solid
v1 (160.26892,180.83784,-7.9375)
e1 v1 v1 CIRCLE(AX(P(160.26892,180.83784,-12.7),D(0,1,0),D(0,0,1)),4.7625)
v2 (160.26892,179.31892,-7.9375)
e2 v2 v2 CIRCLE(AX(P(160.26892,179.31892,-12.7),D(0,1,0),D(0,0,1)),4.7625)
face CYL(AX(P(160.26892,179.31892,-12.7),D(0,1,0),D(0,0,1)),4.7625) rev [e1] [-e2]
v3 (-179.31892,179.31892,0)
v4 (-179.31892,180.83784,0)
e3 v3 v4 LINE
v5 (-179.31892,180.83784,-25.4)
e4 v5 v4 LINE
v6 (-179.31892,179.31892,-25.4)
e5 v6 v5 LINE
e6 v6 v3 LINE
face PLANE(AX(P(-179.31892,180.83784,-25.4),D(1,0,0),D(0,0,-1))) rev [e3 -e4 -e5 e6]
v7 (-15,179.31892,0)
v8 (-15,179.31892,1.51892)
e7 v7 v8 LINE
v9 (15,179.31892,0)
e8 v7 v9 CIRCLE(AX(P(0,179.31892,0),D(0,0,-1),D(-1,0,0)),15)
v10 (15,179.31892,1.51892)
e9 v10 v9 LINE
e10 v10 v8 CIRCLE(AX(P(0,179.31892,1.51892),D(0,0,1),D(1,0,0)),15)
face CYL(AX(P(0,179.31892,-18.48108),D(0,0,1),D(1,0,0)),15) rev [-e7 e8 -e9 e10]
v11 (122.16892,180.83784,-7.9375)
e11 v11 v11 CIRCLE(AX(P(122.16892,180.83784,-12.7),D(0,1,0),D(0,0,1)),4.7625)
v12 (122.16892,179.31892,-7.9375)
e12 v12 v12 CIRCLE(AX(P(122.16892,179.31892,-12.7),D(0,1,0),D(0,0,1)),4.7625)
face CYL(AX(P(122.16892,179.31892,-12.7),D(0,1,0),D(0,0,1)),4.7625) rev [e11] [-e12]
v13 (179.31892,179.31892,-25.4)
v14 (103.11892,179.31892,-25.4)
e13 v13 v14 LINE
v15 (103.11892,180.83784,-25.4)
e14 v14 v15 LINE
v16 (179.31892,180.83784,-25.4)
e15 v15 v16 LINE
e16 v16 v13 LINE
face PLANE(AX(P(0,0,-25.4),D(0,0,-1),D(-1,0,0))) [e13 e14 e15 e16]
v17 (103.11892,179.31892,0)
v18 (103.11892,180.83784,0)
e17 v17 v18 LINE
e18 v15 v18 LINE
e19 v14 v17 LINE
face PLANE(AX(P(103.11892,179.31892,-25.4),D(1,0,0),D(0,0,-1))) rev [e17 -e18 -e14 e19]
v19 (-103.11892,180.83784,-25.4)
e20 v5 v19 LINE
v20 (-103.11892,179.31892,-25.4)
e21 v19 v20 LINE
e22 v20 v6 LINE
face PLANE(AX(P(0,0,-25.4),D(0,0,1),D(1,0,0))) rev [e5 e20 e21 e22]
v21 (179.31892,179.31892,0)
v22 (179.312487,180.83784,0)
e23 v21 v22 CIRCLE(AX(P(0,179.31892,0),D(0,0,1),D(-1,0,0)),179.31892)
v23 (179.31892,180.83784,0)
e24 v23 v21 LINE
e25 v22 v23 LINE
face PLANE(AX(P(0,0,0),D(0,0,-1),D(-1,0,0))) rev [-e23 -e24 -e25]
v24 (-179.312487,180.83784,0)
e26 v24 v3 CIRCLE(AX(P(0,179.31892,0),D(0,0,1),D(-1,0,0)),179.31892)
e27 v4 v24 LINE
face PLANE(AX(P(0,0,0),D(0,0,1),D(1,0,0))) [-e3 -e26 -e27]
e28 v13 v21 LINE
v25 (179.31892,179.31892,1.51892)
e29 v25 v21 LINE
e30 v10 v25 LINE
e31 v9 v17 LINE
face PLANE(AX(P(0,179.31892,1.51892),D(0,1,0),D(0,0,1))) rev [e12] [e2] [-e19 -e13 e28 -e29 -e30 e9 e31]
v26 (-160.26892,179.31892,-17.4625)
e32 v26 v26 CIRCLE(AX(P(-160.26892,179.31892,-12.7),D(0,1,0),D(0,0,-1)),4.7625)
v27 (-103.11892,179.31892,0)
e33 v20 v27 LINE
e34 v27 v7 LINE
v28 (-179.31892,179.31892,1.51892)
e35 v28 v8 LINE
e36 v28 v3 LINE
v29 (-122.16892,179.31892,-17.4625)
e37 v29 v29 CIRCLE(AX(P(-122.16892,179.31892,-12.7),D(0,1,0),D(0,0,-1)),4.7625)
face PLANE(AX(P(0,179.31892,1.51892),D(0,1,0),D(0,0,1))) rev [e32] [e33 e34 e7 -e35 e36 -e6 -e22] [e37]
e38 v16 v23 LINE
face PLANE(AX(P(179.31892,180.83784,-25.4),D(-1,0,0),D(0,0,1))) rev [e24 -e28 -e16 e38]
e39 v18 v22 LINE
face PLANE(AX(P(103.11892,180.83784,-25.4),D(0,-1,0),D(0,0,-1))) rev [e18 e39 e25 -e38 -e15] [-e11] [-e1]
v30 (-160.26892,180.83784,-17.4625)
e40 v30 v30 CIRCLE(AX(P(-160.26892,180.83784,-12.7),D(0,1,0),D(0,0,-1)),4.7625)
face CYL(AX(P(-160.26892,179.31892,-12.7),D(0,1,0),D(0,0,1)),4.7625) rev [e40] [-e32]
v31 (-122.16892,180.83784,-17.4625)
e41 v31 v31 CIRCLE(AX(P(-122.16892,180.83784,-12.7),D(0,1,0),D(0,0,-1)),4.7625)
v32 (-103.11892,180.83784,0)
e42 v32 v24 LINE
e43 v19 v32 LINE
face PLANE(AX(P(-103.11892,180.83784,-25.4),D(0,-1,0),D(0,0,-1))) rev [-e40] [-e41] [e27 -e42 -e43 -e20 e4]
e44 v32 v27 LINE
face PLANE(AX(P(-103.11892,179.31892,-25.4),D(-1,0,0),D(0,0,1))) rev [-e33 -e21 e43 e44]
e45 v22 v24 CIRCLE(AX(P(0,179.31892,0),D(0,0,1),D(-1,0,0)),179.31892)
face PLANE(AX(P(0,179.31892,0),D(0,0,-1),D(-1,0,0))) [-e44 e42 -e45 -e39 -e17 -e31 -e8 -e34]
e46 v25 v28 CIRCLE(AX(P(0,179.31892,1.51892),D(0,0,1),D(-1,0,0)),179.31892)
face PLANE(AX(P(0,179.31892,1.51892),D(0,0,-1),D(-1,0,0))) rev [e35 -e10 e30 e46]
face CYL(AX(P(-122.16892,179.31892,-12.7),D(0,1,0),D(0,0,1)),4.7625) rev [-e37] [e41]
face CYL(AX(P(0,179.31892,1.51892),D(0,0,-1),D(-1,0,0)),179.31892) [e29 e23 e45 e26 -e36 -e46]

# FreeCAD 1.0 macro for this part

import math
import FreeCAD as App
import Part
import Sketcher

V = App.Vector
Q = App.Units.Quantity

doc = App.newDocument("Part")
body = doc.addObject("PartDesign::Body", "Body")

# Sketch on XY plane
sketch1 = doc.addObject("Sketcher::SketchObject", "Sketch")
body.addObject(sketch1)
sketch1.AttachmentSupport = (doc.XY_Plane, [""])
sketch1.MapMode = "FlatFace"
sketch1.addGeometry([
    Part.ArcOfCircle(Part.Circle(V(0, 179, 0), V(0, 0, 1), 179), math.radians(0), math.radians(180)),
    Part.LineSegment(V(-179, 179, 0), V(179, 179, 0)),
], False)
sketch1.addConstraint([
    Sketcher.Constraint("Coincident", 0, 1, 1, 2),
    Sketcher.Constraint("Coincident", 1, 1, 0, 2),
    Sketcher.Constraint("Horizontal", 1),
    Sketcher.Constraint("PointOnObject", 0, 3, -2),
    Sketcher.Constraint("Radius", 0, Q("7.0598 in")),
    Sketcher.Constraint("DistanceY", -1, 1, 0, 3, Q("7.0598 in")),
    Sketcher.Constraint("DistanceY", -1, 1, 0, 1, Q("7.0598 in")),
])
pad1 = doc.addObject("PartDesign::Pad", "Pad")
body.addObject(pad1)
pad1.Profile = sketch1
pad1.Length = Q("0.0598 in")

# Sketch on XY plane
sketch2 = doc.addObject("Sketcher::SketchObject", "Sketch001")
body.addObject(sketch2)
sketch2.AttachmentSupport = (doc.XY_Plane, [""])
sketch2.MapMode = "FlatFace"
sketch2.AttachmentOffset = App.Placement(V(0, 0, 0.0598 * 25.4), App.Rotation())
sketch2.addGeometry(Part.Circle(V(0, 179, 0), V(0, 0, 1), 15), False)
sketch2.addConstraint([
    Sketcher.Constraint("PointOnObject", 0, 3, -2),
    Sketcher.Constraint("Diameter", 0, Q("30 mm")),
    Sketcher.Constraint("DistanceY", -1, 1, 0, 3, Q("7.0598 in")),
])
pocket1 = doc.addObject("PartDesign::Pocket", "Pocket")
body.addObject(pocket1)
pocket1.Profile = sketch2
pocket1.Length = 20

# Sketch on XY plane
sketch3 = doc.addObject("Sketcher::SketchObject", "Sketch002")
body.addObject(sketch3)
sketch3.AttachmentSupport = (doc.XY_Plane, [""])
sketch3.MapMode = "FlatFace"
sketch3.addGeometry([
    Part.LineSegment(V(179.3, 180.8, 0), V(179.3, 179.3, 0)),  # 0
    Part.LineSegment(V(179.3, 179.3, 0), V(103.1, 179.3, 0)),  # 1
    Part.LineSegment(V(103.1, 179.3, 0), V(103.1, 180.8, 0)),  # 2
    Part.LineSegment(V(103.1, 180.8, 0), V(179.3, 180.8, 0)),  # 3
    Part.LineSegment(V(-103.1, 180.8, 0), V(-103.1, 179.3, 0)),  # 4
    Part.LineSegment(V(-103.1, 179.3, 0), V(-179.3, 179.3, 0)),  # 5
    Part.LineSegment(V(-179.3, 179.3, 0), V(-179.3, 180.8, 0)),  # 6
    Part.LineSegment(V(-179.3, 180.8, 0), V(-103.1, 180.8, 0)),  # 7
], False)
sketch3.addConstraint([
    Sketcher.Constraint("Coincident", 0, 2, 1, 1),
    Sketcher.Constraint("Coincident", 1, 2, 2, 1),
    Sketcher.Constraint("Coincident", 2, 2, 3, 1),
    Sketcher.Constraint("Coincident", 3, 2, 0, 1),
    Sketcher.Constraint("Coincident", 4, 2, 5, 1),
    Sketcher.Constraint("Coincident", 5, 2, 6, 1),
    Sketcher.Constraint("Coincident", 6, 2, 7, 1),
    Sketcher.Constraint("Coincident", 7, 2, 4, 1),
    Sketcher.Constraint("Vertical", 0),
    Sketcher.Constraint("Horizontal", 1),
    Sketcher.Constraint("Vertical", 2),
    Sketcher.Constraint("Horizontal", 3),
    Sketcher.Constraint("Vertical", 4),
    Sketcher.Constraint("Horizontal", 5),
    Sketcher.Constraint("Vertical", 6),
    Sketcher.Constraint("Horizontal", 7),
    Sketcher.Constraint("Symmetric", 1, 2, 4, 2, -2),
    Sketcher.Constraint("Symmetric", 3, 2, 6, 2, -2),
    Sketcher.Constraint("DistanceX", 1, 2, 1, 1, Q("3 in")),
    Sketcher.Constraint("DistanceY", 0, 2, 0, 1, Q("0.0598 in")),
    Sketcher.Constraint("DistanceX", -1, 1, 0, 2, Q("7.0598 in")),
    Sketcher.Constraint("DistanceY", -1, 1, 0, 2, Q("7.0598 in")),
])
pad2 = doc.addObject("PartDesign::Pad", "Pad001")
body.addObject(pad2)
pad2.Profile = sketch3
pad2.Length = Q("1 in")
pad2.Reversed = True

# Sketch on XZ plane
sketch4 = doc.addObject("Sketcher::SketchObject", "Sketch003")
body.addObject(sketch4)
sketch4.AttachmentSupport = (doc.XZ_Plane, [""])
sketch4.MapMode = "FlatFace"
sketch4.AttachmentOffset = App.Placement(V(0, 0, -7.1196 * 25.4), App.Rotation())
sketch4.addGeometry([
    Part.Circle(V(160.3, -12.7, 0), V(0, 0, 1), 4.8),
    Part.Circle(V(122.2, -12.7, 0), V(0, 0, 1), 4.8),
    Part.Circle(V(-160.3, -12.7, 0), V(0, 0, 1), 4.8),
    Part.Circle(V(-122.2, -12.7, 0), V(0, 0, 1), 4.8),
], False)
sketch4.addConstraint([
    Sketcher.Constraint("Equal", 0, 1),
    Sketcher.Constraint("Equal", 1, 2),
    Sketcher.Constraint("Equal", 2, 3),
    Sketcher.Constraint("Symmetric", 0, 3, 2, 3, -2),
    Sketcher.Constraint("Symmetric", 1, 3, 3, 3, -2),
    Sketcher.Constraint("Horizontal", 0, 3, 1, 3),
    Sketcher.Constraint("Diameter", 0, Q("0.375 in")),
    Sketcher.Constraint("DistanceY", 0, 3, -1, 1, Q("0.5 in")),
    Sketcher.Constraint("DistanceX", 1, 3, 0, 3, Q("1.5 in")),
    Sketcher.Constraint("DistanceX", -1, 1, 0, 3, Q("6.3098 in")),
])
pocket2 = doc.addObject("PartDesign::Pocket", "Pocket001")
body.addObject(pocket2)
pocket2.Profile = sketch4
pocket2.Type = "ThroughAll"
pocket2.Reversed = True

doc.recompute()
